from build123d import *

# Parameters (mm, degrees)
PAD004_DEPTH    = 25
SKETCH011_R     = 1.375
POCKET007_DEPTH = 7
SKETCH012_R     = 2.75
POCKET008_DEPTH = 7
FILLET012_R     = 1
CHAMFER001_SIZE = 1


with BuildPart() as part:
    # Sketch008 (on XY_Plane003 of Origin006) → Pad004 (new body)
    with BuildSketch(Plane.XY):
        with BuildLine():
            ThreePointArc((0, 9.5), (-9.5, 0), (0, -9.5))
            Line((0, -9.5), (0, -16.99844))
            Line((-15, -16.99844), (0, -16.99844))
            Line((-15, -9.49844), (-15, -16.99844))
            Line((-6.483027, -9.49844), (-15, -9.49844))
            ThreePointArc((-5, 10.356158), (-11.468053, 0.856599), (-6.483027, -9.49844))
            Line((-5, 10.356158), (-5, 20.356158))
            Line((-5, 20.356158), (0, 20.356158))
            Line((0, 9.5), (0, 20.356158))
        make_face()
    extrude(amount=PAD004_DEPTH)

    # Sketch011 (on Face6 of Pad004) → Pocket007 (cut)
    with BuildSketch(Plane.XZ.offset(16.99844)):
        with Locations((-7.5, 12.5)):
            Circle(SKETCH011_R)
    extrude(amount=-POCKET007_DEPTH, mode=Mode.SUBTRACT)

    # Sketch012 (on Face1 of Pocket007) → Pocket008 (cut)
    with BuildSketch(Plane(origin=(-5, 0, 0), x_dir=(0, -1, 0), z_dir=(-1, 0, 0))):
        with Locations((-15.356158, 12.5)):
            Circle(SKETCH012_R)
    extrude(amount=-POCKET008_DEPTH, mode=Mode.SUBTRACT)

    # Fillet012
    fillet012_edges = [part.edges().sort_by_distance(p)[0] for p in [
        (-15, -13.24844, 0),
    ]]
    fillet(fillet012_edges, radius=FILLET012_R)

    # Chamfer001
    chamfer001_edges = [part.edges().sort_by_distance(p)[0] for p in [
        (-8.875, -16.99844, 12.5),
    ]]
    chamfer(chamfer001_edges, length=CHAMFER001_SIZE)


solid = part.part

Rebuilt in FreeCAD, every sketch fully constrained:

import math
import FreeCAD as App
import Part
import Sketcher
Q = App.Units.Quantity


def edges_at(feature, points):
    """Names of the edges that pass closest to the given points."""
    edges = feature.Shape.Edges
    near = lambda p: min(range(len(edges)), key=lambda i: edges[i].distToShape(Part.Vertex(*p))[0])
    return sorted({f"Edge{near(p) + 1}" for p in points})

doc = App.newDocument("Part")
body = doc.addObject("PartDesign::Body", "Body")

sketch1 = body.newObject("Sketcher::SketchObject", "Sketch")
sketch1.AttachmentSupport = (doc.getObject("XY_Plane"), [""])
sketch1.MapMode = "FlatFace"
sketch1.addGeometry([
    Part.ArcOfCircle(Part.Circle(App.Vector(0, 0, 0), App.Vector(0, 0, 1), 9.5), math.radians(90), math.radians(270)),
    Part.LineSegment(App.Vector(0, 9.5, 0), App.Vector(0, 20.356158, 0)),
    Part.LineSegment(App.Vector(0, 20.356158, 0), App.Vector(-5, 20.356158, 0)),
    Part.LineSegment(App.Vector(-5, 20.356158, 0), App.Vector(-5, 10.356158, 0)),
    Part.ArcOfCircle(Part.Circle(App.Vector(0, 0, 0), App.Vector(0, 0, 1), 11.5), math.radians(115.771463), math.radians(235.685056)),
    Part.LineSegment(App.Vector(-6.483027, -9.49844, 0), App.Vector(-15, -9.49844, 0)),
    Part.LineSegment(App.Vector(-15, -9.49844, 0), App.Vector(-15, -16.99844, 0)),
    Part.LineSegment(App.Vector(-15, -16.99844, 0), App.Vector(0, -16.99844, 0)),
    Part.LineSegment(App.Vector(0, -16.99844, 0), App.Vector(0, -9.5, 0)),
], False)
sketch1.addConstraint([
    Sketcher.Constraint("Coincident", 0, 1, 1, 1),
    Sketcher.Constraint("Coincident", 1, 2, 2, 1),
    Sketcher.Constraint("Coincident", 2, 2, 3, 1),
    Sketcher.Constraint("Coincident", 3, 2, 4, 1),
    Sketcher.Constraint("Coincident", 4, 2, 5, 1),
    Sketcher.Constraint("Coincident", 5, 2, 6, 1),
    Sketcher.Constraint("Coincident", 6, 2, 7, 1),
    Sketcher.Constraint("Coincident", 7, 2, 8, 1),
    Sketcher.Constraint("Coincident", 8, 2, 0, 2),
    Sketcher.Constraint("Vertical", 1),
    Sketcher.Constraint("Horizontal", 2),
    Sketcher.Constraint("Vertical", 3),
    Sketcher.Constraint("Horizontal", 5),
    Sketcher.Constraint("Vertical", 6),
    Sketcher.Constraint("Horizontal", 7),
    Sketcher.Constraint("Vertical", 8),
    Sketcher.Constraint("Coincident", 0, 3, -1, 1),
    Sketcher.Constraint("Coincident", 4, 3, -1, 1),
    Sketcher.Constraint("PointOnObject", 0, 1, -2),
    Sketcher.Constraint("PointOnObject", 7, 2, -2),
    Sketcher.Constraint("Radius", 0, Q("9.5 mm")),
    Sketcher.Constraint("Radius", 4, Q("11.5 mm")),
    Sketcher.Constraint("DistanceX", 2, 2, 2, 1, Q("5 mm")),
    Sketcher.Constraint("DistanceX", 7, 1, 7, 2, Q("15 mm")),
    Sketcher.Constraint("DistanceY", 3, 2, 3, 1, Q("10 mm")),
    Sketcher.Constraint("DistanceY", 6, 2, 6, 1, Q("7.5 mm")),
    Sketcher.Constraint("DistanceY", 8, 1, 8, 2, Q("7.49844 mm")),
])
pad1 = body.newObject("PartDesign::Pad", "Pad")
pad1.Profile = sketch1
pad1.Length = 25

sketch2 = body.newObject("Sketcher::SketchObject", "Sketch001")
sketch2.AttachmentSupport = (doc.getObject("XZ_Plane"), [""])
sketch2.MapMode = "FlatFace"
sketch2.AttachmentOffset = App.Placement(App.Vector(0, 0, 16.99844), App.Rotation())
sketch2.addGeometry(Part.Circle(App.Vector(-7.5, 12.5, 0), App.Vector(0, 0, 1), 1.375), False)
sketch2.addConstraint([
    Sketcher.Constraint("Diameter", 0, Q("2.75 mm")),
    Sketcher.Constraint("DistanceX", 0, 3, -1, 1, Q("7.5 mm")),
    Sketcher.Constraint("DistanceY", -1, 1, 0, 3, Q("12.5 mm")),
])
pocket1 = body.newObject("PartDesign::Pocket", "Pocket")
pocket1.Profile = sketch2
pocket1.Length = 7

sketch3 = body.newObject("Sketcher::SketchObject", "Sketch002")
sketch3.AttachmentSupport = (doc.getObject("YZ_Plane"), [""])
sketch3.MapMode = "FlatFace"
sketch3.AttachmentOffset = App.Placement(App.Vector(0, 0, -5), App.Rotation())
sketch3.addGeometry(Part.Circle(App.Vector(15.356158, 12.5, 0), App.Vector(0, 0, 1), 2.75), False)
sketch3.addConstraint([
    Sketcher.Constraint("Diameter", 0, Q("5.5 mm")),
    Sketcher.Constraint("DistanceY", -1, 1, 0, 3, Q("12.5 mm")),
    Sketcher.Constraint("DistanceX", -1, 1, 0, 3, Q("15.356158 mm")),
])
pocket2 = body.newObject("PartDesign::Pocket", "Pocket001")
pocket2.Profile = sketch3
pocket2.Length = 7
pocket2.Reversed = True
doc.recompute()

fillet = body.newObject("PartDesign::Fillet", "Fillet")
fillet.Base = (pocket2, edges_at(pocket2, [(-15, -13.248, 0)]))
fillet.Radius = 1
doc.recompute()

chamfer = body.newObject("PartDesign::Chamfer", "Chamfer")
chamfer.Base = (fillet, edges_at(fillet, [(-8.875, -16.998, 12.5)]))
chamfer.Size = 1

doc.recompute()
